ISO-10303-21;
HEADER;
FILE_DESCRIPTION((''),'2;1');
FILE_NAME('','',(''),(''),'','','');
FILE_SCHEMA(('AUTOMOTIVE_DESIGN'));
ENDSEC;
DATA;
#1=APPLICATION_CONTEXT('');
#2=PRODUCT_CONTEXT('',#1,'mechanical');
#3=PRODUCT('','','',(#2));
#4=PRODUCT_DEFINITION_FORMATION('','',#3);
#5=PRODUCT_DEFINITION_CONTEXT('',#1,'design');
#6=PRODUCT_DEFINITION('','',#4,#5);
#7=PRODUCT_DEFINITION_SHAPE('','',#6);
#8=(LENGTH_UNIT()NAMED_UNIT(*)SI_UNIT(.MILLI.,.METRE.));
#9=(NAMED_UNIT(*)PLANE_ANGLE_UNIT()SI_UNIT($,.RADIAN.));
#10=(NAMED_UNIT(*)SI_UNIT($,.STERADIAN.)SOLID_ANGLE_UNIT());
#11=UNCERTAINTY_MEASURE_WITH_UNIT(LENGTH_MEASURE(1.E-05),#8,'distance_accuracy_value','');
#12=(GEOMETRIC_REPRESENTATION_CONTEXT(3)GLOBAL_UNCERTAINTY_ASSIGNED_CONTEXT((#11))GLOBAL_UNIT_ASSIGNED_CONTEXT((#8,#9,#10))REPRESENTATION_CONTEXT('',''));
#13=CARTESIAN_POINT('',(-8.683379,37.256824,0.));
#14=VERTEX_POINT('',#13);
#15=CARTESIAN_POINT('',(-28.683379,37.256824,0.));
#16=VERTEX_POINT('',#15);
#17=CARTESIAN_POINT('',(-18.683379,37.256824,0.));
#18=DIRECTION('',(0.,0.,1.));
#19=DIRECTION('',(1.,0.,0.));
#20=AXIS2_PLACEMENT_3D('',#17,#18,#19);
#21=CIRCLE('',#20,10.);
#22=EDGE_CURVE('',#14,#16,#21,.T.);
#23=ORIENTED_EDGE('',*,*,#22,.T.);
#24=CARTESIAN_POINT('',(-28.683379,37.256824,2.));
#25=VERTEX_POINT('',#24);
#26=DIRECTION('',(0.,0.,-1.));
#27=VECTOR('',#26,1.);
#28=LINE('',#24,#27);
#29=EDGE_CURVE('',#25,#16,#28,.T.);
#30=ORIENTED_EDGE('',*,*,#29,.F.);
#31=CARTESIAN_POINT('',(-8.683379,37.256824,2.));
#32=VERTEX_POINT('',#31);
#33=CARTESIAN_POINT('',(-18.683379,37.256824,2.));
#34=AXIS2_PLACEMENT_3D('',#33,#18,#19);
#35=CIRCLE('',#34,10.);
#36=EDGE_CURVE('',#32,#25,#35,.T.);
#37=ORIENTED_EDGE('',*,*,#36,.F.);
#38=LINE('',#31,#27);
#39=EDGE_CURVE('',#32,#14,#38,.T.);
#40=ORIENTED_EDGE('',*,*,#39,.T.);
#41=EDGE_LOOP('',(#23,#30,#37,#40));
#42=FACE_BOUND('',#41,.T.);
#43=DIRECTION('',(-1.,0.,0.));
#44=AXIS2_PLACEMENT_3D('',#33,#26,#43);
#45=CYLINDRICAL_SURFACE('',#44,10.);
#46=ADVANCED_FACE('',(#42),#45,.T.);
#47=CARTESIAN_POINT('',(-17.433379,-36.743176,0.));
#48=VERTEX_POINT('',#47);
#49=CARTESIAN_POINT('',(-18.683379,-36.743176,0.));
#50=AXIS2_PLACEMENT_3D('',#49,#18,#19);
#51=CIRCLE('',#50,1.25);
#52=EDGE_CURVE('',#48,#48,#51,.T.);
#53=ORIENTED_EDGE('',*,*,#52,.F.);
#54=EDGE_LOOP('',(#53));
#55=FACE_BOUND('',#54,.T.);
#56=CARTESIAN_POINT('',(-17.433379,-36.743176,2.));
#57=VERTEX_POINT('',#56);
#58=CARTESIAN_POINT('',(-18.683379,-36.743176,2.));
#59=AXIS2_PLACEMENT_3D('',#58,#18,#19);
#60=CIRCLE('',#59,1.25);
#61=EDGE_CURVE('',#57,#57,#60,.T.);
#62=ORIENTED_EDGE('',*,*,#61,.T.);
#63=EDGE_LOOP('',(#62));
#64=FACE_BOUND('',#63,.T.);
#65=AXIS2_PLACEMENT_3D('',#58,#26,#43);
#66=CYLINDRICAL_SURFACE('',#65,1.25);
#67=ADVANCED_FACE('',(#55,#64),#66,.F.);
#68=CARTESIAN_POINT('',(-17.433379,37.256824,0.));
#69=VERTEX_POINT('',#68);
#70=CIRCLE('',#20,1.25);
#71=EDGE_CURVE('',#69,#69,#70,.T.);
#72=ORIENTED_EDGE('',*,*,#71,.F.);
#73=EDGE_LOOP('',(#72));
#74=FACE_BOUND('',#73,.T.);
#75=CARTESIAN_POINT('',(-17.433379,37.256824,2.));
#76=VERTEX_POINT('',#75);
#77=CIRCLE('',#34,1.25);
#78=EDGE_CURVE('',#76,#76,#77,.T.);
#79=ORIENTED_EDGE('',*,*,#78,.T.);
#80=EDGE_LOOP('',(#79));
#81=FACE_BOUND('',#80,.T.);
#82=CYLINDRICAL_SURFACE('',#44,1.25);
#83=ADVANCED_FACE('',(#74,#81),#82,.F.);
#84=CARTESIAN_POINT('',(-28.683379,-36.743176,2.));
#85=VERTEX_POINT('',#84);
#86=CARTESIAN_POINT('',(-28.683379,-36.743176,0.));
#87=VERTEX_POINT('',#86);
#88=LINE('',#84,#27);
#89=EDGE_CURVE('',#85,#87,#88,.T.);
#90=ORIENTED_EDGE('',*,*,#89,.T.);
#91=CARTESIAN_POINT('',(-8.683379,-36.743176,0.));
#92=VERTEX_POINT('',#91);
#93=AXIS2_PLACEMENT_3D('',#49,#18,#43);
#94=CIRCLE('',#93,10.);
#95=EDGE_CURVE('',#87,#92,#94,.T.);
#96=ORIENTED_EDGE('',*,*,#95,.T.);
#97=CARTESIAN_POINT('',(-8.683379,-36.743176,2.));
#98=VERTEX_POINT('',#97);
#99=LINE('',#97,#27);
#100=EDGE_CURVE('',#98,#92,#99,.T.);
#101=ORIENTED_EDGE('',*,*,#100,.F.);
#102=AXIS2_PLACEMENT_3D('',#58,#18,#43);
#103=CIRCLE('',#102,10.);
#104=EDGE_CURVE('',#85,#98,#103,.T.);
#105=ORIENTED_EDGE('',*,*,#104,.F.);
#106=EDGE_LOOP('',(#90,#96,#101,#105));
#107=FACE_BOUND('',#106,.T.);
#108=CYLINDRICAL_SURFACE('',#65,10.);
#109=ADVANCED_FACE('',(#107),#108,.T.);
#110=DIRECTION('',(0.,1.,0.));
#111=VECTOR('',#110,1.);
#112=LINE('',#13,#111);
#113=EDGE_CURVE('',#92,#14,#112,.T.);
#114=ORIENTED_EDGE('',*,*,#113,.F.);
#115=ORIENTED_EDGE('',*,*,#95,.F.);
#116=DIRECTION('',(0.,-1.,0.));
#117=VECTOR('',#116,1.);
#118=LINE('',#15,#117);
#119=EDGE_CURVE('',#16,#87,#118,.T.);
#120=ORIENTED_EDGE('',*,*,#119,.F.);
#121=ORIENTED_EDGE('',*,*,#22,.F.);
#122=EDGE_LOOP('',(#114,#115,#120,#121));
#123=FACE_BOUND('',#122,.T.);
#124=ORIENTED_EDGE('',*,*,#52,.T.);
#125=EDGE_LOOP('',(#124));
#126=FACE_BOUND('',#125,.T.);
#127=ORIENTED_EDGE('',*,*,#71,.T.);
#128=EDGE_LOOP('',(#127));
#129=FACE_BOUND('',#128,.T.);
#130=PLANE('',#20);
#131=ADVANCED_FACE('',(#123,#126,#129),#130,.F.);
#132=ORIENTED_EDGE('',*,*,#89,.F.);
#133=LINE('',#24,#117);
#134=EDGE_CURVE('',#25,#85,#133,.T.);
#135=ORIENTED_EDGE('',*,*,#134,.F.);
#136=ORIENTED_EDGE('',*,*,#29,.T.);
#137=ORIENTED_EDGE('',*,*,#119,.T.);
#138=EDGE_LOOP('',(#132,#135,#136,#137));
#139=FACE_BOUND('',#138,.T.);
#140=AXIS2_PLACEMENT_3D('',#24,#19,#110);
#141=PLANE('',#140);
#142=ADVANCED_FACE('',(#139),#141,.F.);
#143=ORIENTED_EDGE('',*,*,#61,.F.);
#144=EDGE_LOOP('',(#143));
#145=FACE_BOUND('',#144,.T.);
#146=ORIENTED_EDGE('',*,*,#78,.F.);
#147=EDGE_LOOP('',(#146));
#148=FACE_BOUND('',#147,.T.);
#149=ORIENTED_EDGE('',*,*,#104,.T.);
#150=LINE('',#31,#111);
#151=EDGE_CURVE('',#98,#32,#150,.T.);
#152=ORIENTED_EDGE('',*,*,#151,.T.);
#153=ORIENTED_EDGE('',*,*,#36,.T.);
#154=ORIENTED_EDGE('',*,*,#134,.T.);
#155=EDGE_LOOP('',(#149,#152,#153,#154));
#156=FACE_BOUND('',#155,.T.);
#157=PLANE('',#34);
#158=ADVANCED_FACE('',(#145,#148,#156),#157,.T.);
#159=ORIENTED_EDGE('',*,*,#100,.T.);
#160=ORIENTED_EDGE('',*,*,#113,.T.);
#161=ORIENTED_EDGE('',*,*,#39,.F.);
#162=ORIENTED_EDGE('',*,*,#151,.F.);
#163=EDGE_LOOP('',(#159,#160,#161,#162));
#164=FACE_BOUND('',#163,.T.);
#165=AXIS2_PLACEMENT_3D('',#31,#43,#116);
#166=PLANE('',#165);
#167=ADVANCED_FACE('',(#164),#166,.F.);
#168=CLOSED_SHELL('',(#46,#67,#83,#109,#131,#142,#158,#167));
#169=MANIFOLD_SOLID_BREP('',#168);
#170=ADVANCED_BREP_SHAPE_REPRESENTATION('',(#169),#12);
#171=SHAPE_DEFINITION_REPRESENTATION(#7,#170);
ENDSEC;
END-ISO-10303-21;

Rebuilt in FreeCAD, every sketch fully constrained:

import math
import FreeCAD as App
import Part
import Sketcher
Q = App.Units.Quantity

doc = App.newDocument("Part")
body = doc.addObject("PartDesign::Body", "Body")

sketch1 = doc.addObject("Sketcher::SketchObject", "Sketch")
body.addObject(sketch1)
sketch1.AttachmentSupport = (doc.XY_Plane, [""])
sketch1.MapMode = "FlatFace"
sketch1.addGeometry([
    Part.LineSegment(App.Vector(-28.683379, 37.256824, 0), App.Vector(-28.683379, -36.743176, 0)),
    Part.ArcOfCircle(Part.Circle(App.Vector(-18.683379, -36.743176, 0), App.Vector(0, 0, 1), 10), math.radians(180), math.radians(360)),
    Part.LineSegment(App.Vector(-8.683379, -36.743176, 0), App.Vector(-8.683379, 37.256824, 0)),
    Part.ArcOfCircle(Part.Circle(App.Vector(-18.683379, 37.256824, 0), App.Vector(0, 0, 1), 10), math.radians(0), math.radians(180)),
    Part.Circle(App.Vector(-18.683379, -36.743176, 0), App.Vector(0, 0, 1), 1.25),
    Part.Circle(App.Vector(-18.683379, 37.256824, 0), App.Vector(0, 0, 1), 1.25),
], False)
sketch1.addConstraint([
    Sketcher.Constraint("Tangent", 0, 2, 1, 1),
    Sketcher.Constraint("Tangent", 1, 2, 2, 1),
    Sketcher.Constraint("Tangent", 2, 2, 3, 1),
    Sketcher.Constraint("Tangent", 3, 2, 0, 1),
    Sketcher.Constraint("Vertical", 0),
    Sketcher.Constraint("Vertical", 2),
    Sketcher.Constraint("Coincident", 4, 3, 1, 3),
    Sketcher.Constraint("Coincident", 5, 3, 3, 3),
    Sketcher.Constraint("Equal", 4, 5),
    Sketcher.Constraint("Radius", 1, Q("10 mm")),
    Sketcher.Constraint("Diameter", 4, Q("2.5 mm")),
    Sketcher.Constraint("DistanceY", 0, 2, 0, 1, Q("74 mm")),
    Sketcher.Constraint("DistanceX", 1, 3, -1, 1, Q("18.683379 mm")),
    Sketcher.Constraint("DistanceY", 1, 3, -1, 1, Q("36.743176 mm")),
])
pad1 = doc.addObject("PartDesign::Pad", "Pad")
body.addObject(pad1)
pad1.Profile = sketch1
pad1.Length = 2

doc.recompute()
